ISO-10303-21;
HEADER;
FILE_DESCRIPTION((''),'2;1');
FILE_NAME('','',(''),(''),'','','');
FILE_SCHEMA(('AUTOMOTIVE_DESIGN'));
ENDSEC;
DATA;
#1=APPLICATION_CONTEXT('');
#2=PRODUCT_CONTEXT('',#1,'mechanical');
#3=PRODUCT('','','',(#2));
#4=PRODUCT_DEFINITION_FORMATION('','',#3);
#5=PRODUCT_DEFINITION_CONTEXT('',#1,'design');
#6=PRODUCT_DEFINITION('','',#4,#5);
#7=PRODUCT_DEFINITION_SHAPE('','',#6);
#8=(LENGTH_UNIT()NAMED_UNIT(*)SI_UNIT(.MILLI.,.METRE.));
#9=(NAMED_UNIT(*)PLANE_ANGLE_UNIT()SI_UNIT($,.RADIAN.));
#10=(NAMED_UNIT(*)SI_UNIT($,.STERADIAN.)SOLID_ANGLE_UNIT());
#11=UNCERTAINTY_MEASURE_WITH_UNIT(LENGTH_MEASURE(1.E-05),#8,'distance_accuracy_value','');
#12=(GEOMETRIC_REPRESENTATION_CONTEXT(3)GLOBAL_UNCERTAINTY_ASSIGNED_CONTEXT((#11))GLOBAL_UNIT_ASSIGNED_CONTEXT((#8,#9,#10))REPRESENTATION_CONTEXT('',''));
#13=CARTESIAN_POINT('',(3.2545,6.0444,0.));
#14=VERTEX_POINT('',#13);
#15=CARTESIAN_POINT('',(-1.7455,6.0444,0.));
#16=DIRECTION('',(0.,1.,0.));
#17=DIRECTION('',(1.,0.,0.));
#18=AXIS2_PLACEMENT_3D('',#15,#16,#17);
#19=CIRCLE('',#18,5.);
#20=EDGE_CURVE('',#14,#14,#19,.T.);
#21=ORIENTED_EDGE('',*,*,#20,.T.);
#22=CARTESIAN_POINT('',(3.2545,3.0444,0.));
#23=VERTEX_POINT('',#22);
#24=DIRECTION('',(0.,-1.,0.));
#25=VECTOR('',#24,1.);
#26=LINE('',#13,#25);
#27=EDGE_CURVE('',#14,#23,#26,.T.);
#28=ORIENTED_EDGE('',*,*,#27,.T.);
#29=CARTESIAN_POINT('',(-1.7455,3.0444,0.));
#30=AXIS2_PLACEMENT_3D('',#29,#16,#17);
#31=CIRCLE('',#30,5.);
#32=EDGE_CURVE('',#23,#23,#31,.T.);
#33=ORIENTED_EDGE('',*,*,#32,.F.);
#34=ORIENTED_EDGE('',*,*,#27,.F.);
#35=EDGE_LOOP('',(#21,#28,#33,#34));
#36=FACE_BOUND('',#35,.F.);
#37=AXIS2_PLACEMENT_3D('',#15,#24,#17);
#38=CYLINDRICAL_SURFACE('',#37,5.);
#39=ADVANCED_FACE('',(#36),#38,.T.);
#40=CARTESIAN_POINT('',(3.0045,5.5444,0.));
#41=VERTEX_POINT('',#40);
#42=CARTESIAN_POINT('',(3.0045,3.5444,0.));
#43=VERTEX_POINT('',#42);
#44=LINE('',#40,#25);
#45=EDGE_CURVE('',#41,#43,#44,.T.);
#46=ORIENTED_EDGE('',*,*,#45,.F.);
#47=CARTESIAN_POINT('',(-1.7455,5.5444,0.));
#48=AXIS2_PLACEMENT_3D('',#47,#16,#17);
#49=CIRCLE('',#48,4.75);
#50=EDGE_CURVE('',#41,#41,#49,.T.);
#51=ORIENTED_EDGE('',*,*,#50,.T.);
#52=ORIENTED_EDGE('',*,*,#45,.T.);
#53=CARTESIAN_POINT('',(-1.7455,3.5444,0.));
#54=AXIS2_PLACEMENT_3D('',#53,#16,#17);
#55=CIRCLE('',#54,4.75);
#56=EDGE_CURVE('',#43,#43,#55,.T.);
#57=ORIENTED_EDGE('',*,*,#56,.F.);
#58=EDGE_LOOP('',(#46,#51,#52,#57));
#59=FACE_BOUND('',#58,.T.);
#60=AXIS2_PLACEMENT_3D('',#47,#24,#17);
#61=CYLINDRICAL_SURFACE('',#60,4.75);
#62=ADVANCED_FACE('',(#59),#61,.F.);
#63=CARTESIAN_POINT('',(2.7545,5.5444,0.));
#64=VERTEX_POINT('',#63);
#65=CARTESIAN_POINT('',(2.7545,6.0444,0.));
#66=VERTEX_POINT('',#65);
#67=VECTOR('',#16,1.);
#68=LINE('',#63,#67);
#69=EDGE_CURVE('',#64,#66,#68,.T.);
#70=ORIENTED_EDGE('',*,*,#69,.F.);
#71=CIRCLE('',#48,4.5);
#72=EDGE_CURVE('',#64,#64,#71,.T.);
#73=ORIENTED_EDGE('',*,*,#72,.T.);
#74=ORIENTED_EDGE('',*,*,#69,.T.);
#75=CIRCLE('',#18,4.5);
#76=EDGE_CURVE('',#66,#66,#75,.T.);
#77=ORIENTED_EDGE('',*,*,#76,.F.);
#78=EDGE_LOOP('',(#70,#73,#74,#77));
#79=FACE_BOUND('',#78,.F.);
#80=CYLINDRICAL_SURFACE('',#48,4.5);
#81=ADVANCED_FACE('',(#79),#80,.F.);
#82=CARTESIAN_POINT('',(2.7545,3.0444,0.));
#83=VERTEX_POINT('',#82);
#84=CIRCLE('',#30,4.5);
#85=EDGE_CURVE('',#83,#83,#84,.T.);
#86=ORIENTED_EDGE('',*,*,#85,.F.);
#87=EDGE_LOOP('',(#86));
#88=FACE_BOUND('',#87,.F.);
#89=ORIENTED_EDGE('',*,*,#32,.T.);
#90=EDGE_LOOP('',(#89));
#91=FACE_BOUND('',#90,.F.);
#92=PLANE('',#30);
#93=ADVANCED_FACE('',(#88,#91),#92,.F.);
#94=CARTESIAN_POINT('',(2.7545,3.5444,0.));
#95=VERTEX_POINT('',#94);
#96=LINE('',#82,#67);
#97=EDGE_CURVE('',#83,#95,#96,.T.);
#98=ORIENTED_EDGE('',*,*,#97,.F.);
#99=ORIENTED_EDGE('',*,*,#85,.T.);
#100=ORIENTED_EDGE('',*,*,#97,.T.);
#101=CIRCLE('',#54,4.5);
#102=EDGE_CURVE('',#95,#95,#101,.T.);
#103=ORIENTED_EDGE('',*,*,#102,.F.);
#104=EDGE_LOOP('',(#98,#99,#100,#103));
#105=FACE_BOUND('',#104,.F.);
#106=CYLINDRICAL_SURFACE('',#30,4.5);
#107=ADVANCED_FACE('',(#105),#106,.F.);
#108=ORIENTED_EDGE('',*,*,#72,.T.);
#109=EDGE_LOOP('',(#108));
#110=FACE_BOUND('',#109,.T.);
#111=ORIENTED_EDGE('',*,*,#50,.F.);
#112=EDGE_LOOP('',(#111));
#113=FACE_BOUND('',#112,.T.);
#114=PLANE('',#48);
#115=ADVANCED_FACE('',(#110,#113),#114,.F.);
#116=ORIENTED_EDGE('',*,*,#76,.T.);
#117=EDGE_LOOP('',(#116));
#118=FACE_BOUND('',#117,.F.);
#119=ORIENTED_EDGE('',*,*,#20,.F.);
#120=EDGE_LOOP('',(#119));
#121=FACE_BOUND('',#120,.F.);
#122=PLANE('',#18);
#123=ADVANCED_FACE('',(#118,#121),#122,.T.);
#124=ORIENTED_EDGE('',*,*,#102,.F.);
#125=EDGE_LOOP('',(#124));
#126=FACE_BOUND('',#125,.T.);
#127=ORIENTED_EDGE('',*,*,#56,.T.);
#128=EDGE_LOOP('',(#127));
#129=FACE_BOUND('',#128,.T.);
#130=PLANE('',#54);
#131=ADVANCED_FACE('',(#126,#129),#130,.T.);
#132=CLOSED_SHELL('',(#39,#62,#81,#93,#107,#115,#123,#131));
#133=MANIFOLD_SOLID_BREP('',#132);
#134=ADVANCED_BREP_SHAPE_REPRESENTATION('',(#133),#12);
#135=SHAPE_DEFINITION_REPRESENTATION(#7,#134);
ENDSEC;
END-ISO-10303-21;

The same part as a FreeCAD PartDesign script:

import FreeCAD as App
import Part
import Sketcher

V = App.Vector
Q = App.Units.Quantity


def add_polygon(sketch, points):
    """Adds a closed chain of lines whose ends are joined by coincident constraints."""
    first, n = sketch.GeometryCount, len(points)
    for a, b in zip(points, points[1:] + points[:1]):
        sketch.addGeometry(Part.LineSegment(App.Vector(*a, 0), App.Vector(*b, 0)), False)
    for i in range(n):
        sketch.addConstraint(Sketcher.Constraint("Coincident", first + i, 2, first + (i + 1) % n, 1))

doc = App.newDocument("Part")
body = doc.addObject("PartDesign::Body", "Body")

# Sketch on XY plane
sketch1 = body.newObject("Sketcher::SketchObject", "Sketch")
sketch1.AttachmentSupport = (doc.getObject("XY_Plane"), [""])
sketch1.MapMode = "FlatFace"
add_polygon(sketch1, [(2.75, 6.04), (2.75, 5.54), (3, 5.54), (3, 3.54), (2.75, 3.54), (2.75, 3.04), (3.25, 3.04), (3.25, 6.04)])  # lines 0-7
sketch1.addGeometry(Part.LineSegment(V(-1.75, 3.04, 0), V(-1.75, 6.04, 0)), True)  # axis
sketch1.addConstraint(Sketcher.Constraint("Vertical", 0))
sketch1.addConstraint(Sketcher.Constraint("Horizontal", 1))
sketch1.addConstraint(Sketcher.Constraint("Vertical", 2))
sketch1.addConstraint(Sketcher.Constraint("Horizontal", 3))
sketch1.addConstraint(Sketcher.Constraint("Vertical", 4))
sketch1.addConstraint(Sketcher.Constraint("Horizontal", 5))
sketch1.addConstraint(Sketcher.Constraint("Vertical", 6))
sketch1.addConstraint(Sketcher.Constraint("Horizontal", 7))
sketch1.addConstraint(Sketcher.Constraint("Vertical", 8))
sketch1.addConstraint(Sketcher.Constraint("Horizontal", 5, 2, 8, 1))
sketch1.addConstraint(Sketcher.Constraint("Horizontal", 7, 2, 8, 2))
sketch1.addConstraint(Sketcher.Constraint("Vertical", 0, 2, 3, 2))
sketch1.addConstraint(Sketcher.Constraint("Equal", 7, 0))
sketch1.addConstraint(Sketcher.Constraint("Equal", 0, 4))
sketch1.addConstraint(Sketcher.Constraint("DistanceY", 6, 1, 6, 2, Q("3 mm")))
sketch1.addConstraint(Sketcher.Constraint("DistanceX", 5, 1, 5, 2, Q("0.5 mm")))
sketch1.addConstraint(Sketcher.Constraint("DistanceX", 1, 1, 1, 2, Q("0.25 mm")))
sketch1.addConstraint(Sketcher.Constraint("DistanceX", 8, 1, 5, 2, Q("5 mm")))
sketch1.addConstraint(Sketcher.Constraint("DistanceX", -1, 1, 0, 2, Q("2.7545 mm")))
sketch1.addConstraint(Sketcher.Constraint("DistanceY", -1, 1, 0, 2, Q("5.5444 mm")))
revolution = body.newObject("PartDesign::Revolution", "Revolution")
revolution.Profile = sketch1
revolution.ReferenceAxis = (sketch1, ["Axis0"])
revolution.Angle = 360

doc.recompute()
